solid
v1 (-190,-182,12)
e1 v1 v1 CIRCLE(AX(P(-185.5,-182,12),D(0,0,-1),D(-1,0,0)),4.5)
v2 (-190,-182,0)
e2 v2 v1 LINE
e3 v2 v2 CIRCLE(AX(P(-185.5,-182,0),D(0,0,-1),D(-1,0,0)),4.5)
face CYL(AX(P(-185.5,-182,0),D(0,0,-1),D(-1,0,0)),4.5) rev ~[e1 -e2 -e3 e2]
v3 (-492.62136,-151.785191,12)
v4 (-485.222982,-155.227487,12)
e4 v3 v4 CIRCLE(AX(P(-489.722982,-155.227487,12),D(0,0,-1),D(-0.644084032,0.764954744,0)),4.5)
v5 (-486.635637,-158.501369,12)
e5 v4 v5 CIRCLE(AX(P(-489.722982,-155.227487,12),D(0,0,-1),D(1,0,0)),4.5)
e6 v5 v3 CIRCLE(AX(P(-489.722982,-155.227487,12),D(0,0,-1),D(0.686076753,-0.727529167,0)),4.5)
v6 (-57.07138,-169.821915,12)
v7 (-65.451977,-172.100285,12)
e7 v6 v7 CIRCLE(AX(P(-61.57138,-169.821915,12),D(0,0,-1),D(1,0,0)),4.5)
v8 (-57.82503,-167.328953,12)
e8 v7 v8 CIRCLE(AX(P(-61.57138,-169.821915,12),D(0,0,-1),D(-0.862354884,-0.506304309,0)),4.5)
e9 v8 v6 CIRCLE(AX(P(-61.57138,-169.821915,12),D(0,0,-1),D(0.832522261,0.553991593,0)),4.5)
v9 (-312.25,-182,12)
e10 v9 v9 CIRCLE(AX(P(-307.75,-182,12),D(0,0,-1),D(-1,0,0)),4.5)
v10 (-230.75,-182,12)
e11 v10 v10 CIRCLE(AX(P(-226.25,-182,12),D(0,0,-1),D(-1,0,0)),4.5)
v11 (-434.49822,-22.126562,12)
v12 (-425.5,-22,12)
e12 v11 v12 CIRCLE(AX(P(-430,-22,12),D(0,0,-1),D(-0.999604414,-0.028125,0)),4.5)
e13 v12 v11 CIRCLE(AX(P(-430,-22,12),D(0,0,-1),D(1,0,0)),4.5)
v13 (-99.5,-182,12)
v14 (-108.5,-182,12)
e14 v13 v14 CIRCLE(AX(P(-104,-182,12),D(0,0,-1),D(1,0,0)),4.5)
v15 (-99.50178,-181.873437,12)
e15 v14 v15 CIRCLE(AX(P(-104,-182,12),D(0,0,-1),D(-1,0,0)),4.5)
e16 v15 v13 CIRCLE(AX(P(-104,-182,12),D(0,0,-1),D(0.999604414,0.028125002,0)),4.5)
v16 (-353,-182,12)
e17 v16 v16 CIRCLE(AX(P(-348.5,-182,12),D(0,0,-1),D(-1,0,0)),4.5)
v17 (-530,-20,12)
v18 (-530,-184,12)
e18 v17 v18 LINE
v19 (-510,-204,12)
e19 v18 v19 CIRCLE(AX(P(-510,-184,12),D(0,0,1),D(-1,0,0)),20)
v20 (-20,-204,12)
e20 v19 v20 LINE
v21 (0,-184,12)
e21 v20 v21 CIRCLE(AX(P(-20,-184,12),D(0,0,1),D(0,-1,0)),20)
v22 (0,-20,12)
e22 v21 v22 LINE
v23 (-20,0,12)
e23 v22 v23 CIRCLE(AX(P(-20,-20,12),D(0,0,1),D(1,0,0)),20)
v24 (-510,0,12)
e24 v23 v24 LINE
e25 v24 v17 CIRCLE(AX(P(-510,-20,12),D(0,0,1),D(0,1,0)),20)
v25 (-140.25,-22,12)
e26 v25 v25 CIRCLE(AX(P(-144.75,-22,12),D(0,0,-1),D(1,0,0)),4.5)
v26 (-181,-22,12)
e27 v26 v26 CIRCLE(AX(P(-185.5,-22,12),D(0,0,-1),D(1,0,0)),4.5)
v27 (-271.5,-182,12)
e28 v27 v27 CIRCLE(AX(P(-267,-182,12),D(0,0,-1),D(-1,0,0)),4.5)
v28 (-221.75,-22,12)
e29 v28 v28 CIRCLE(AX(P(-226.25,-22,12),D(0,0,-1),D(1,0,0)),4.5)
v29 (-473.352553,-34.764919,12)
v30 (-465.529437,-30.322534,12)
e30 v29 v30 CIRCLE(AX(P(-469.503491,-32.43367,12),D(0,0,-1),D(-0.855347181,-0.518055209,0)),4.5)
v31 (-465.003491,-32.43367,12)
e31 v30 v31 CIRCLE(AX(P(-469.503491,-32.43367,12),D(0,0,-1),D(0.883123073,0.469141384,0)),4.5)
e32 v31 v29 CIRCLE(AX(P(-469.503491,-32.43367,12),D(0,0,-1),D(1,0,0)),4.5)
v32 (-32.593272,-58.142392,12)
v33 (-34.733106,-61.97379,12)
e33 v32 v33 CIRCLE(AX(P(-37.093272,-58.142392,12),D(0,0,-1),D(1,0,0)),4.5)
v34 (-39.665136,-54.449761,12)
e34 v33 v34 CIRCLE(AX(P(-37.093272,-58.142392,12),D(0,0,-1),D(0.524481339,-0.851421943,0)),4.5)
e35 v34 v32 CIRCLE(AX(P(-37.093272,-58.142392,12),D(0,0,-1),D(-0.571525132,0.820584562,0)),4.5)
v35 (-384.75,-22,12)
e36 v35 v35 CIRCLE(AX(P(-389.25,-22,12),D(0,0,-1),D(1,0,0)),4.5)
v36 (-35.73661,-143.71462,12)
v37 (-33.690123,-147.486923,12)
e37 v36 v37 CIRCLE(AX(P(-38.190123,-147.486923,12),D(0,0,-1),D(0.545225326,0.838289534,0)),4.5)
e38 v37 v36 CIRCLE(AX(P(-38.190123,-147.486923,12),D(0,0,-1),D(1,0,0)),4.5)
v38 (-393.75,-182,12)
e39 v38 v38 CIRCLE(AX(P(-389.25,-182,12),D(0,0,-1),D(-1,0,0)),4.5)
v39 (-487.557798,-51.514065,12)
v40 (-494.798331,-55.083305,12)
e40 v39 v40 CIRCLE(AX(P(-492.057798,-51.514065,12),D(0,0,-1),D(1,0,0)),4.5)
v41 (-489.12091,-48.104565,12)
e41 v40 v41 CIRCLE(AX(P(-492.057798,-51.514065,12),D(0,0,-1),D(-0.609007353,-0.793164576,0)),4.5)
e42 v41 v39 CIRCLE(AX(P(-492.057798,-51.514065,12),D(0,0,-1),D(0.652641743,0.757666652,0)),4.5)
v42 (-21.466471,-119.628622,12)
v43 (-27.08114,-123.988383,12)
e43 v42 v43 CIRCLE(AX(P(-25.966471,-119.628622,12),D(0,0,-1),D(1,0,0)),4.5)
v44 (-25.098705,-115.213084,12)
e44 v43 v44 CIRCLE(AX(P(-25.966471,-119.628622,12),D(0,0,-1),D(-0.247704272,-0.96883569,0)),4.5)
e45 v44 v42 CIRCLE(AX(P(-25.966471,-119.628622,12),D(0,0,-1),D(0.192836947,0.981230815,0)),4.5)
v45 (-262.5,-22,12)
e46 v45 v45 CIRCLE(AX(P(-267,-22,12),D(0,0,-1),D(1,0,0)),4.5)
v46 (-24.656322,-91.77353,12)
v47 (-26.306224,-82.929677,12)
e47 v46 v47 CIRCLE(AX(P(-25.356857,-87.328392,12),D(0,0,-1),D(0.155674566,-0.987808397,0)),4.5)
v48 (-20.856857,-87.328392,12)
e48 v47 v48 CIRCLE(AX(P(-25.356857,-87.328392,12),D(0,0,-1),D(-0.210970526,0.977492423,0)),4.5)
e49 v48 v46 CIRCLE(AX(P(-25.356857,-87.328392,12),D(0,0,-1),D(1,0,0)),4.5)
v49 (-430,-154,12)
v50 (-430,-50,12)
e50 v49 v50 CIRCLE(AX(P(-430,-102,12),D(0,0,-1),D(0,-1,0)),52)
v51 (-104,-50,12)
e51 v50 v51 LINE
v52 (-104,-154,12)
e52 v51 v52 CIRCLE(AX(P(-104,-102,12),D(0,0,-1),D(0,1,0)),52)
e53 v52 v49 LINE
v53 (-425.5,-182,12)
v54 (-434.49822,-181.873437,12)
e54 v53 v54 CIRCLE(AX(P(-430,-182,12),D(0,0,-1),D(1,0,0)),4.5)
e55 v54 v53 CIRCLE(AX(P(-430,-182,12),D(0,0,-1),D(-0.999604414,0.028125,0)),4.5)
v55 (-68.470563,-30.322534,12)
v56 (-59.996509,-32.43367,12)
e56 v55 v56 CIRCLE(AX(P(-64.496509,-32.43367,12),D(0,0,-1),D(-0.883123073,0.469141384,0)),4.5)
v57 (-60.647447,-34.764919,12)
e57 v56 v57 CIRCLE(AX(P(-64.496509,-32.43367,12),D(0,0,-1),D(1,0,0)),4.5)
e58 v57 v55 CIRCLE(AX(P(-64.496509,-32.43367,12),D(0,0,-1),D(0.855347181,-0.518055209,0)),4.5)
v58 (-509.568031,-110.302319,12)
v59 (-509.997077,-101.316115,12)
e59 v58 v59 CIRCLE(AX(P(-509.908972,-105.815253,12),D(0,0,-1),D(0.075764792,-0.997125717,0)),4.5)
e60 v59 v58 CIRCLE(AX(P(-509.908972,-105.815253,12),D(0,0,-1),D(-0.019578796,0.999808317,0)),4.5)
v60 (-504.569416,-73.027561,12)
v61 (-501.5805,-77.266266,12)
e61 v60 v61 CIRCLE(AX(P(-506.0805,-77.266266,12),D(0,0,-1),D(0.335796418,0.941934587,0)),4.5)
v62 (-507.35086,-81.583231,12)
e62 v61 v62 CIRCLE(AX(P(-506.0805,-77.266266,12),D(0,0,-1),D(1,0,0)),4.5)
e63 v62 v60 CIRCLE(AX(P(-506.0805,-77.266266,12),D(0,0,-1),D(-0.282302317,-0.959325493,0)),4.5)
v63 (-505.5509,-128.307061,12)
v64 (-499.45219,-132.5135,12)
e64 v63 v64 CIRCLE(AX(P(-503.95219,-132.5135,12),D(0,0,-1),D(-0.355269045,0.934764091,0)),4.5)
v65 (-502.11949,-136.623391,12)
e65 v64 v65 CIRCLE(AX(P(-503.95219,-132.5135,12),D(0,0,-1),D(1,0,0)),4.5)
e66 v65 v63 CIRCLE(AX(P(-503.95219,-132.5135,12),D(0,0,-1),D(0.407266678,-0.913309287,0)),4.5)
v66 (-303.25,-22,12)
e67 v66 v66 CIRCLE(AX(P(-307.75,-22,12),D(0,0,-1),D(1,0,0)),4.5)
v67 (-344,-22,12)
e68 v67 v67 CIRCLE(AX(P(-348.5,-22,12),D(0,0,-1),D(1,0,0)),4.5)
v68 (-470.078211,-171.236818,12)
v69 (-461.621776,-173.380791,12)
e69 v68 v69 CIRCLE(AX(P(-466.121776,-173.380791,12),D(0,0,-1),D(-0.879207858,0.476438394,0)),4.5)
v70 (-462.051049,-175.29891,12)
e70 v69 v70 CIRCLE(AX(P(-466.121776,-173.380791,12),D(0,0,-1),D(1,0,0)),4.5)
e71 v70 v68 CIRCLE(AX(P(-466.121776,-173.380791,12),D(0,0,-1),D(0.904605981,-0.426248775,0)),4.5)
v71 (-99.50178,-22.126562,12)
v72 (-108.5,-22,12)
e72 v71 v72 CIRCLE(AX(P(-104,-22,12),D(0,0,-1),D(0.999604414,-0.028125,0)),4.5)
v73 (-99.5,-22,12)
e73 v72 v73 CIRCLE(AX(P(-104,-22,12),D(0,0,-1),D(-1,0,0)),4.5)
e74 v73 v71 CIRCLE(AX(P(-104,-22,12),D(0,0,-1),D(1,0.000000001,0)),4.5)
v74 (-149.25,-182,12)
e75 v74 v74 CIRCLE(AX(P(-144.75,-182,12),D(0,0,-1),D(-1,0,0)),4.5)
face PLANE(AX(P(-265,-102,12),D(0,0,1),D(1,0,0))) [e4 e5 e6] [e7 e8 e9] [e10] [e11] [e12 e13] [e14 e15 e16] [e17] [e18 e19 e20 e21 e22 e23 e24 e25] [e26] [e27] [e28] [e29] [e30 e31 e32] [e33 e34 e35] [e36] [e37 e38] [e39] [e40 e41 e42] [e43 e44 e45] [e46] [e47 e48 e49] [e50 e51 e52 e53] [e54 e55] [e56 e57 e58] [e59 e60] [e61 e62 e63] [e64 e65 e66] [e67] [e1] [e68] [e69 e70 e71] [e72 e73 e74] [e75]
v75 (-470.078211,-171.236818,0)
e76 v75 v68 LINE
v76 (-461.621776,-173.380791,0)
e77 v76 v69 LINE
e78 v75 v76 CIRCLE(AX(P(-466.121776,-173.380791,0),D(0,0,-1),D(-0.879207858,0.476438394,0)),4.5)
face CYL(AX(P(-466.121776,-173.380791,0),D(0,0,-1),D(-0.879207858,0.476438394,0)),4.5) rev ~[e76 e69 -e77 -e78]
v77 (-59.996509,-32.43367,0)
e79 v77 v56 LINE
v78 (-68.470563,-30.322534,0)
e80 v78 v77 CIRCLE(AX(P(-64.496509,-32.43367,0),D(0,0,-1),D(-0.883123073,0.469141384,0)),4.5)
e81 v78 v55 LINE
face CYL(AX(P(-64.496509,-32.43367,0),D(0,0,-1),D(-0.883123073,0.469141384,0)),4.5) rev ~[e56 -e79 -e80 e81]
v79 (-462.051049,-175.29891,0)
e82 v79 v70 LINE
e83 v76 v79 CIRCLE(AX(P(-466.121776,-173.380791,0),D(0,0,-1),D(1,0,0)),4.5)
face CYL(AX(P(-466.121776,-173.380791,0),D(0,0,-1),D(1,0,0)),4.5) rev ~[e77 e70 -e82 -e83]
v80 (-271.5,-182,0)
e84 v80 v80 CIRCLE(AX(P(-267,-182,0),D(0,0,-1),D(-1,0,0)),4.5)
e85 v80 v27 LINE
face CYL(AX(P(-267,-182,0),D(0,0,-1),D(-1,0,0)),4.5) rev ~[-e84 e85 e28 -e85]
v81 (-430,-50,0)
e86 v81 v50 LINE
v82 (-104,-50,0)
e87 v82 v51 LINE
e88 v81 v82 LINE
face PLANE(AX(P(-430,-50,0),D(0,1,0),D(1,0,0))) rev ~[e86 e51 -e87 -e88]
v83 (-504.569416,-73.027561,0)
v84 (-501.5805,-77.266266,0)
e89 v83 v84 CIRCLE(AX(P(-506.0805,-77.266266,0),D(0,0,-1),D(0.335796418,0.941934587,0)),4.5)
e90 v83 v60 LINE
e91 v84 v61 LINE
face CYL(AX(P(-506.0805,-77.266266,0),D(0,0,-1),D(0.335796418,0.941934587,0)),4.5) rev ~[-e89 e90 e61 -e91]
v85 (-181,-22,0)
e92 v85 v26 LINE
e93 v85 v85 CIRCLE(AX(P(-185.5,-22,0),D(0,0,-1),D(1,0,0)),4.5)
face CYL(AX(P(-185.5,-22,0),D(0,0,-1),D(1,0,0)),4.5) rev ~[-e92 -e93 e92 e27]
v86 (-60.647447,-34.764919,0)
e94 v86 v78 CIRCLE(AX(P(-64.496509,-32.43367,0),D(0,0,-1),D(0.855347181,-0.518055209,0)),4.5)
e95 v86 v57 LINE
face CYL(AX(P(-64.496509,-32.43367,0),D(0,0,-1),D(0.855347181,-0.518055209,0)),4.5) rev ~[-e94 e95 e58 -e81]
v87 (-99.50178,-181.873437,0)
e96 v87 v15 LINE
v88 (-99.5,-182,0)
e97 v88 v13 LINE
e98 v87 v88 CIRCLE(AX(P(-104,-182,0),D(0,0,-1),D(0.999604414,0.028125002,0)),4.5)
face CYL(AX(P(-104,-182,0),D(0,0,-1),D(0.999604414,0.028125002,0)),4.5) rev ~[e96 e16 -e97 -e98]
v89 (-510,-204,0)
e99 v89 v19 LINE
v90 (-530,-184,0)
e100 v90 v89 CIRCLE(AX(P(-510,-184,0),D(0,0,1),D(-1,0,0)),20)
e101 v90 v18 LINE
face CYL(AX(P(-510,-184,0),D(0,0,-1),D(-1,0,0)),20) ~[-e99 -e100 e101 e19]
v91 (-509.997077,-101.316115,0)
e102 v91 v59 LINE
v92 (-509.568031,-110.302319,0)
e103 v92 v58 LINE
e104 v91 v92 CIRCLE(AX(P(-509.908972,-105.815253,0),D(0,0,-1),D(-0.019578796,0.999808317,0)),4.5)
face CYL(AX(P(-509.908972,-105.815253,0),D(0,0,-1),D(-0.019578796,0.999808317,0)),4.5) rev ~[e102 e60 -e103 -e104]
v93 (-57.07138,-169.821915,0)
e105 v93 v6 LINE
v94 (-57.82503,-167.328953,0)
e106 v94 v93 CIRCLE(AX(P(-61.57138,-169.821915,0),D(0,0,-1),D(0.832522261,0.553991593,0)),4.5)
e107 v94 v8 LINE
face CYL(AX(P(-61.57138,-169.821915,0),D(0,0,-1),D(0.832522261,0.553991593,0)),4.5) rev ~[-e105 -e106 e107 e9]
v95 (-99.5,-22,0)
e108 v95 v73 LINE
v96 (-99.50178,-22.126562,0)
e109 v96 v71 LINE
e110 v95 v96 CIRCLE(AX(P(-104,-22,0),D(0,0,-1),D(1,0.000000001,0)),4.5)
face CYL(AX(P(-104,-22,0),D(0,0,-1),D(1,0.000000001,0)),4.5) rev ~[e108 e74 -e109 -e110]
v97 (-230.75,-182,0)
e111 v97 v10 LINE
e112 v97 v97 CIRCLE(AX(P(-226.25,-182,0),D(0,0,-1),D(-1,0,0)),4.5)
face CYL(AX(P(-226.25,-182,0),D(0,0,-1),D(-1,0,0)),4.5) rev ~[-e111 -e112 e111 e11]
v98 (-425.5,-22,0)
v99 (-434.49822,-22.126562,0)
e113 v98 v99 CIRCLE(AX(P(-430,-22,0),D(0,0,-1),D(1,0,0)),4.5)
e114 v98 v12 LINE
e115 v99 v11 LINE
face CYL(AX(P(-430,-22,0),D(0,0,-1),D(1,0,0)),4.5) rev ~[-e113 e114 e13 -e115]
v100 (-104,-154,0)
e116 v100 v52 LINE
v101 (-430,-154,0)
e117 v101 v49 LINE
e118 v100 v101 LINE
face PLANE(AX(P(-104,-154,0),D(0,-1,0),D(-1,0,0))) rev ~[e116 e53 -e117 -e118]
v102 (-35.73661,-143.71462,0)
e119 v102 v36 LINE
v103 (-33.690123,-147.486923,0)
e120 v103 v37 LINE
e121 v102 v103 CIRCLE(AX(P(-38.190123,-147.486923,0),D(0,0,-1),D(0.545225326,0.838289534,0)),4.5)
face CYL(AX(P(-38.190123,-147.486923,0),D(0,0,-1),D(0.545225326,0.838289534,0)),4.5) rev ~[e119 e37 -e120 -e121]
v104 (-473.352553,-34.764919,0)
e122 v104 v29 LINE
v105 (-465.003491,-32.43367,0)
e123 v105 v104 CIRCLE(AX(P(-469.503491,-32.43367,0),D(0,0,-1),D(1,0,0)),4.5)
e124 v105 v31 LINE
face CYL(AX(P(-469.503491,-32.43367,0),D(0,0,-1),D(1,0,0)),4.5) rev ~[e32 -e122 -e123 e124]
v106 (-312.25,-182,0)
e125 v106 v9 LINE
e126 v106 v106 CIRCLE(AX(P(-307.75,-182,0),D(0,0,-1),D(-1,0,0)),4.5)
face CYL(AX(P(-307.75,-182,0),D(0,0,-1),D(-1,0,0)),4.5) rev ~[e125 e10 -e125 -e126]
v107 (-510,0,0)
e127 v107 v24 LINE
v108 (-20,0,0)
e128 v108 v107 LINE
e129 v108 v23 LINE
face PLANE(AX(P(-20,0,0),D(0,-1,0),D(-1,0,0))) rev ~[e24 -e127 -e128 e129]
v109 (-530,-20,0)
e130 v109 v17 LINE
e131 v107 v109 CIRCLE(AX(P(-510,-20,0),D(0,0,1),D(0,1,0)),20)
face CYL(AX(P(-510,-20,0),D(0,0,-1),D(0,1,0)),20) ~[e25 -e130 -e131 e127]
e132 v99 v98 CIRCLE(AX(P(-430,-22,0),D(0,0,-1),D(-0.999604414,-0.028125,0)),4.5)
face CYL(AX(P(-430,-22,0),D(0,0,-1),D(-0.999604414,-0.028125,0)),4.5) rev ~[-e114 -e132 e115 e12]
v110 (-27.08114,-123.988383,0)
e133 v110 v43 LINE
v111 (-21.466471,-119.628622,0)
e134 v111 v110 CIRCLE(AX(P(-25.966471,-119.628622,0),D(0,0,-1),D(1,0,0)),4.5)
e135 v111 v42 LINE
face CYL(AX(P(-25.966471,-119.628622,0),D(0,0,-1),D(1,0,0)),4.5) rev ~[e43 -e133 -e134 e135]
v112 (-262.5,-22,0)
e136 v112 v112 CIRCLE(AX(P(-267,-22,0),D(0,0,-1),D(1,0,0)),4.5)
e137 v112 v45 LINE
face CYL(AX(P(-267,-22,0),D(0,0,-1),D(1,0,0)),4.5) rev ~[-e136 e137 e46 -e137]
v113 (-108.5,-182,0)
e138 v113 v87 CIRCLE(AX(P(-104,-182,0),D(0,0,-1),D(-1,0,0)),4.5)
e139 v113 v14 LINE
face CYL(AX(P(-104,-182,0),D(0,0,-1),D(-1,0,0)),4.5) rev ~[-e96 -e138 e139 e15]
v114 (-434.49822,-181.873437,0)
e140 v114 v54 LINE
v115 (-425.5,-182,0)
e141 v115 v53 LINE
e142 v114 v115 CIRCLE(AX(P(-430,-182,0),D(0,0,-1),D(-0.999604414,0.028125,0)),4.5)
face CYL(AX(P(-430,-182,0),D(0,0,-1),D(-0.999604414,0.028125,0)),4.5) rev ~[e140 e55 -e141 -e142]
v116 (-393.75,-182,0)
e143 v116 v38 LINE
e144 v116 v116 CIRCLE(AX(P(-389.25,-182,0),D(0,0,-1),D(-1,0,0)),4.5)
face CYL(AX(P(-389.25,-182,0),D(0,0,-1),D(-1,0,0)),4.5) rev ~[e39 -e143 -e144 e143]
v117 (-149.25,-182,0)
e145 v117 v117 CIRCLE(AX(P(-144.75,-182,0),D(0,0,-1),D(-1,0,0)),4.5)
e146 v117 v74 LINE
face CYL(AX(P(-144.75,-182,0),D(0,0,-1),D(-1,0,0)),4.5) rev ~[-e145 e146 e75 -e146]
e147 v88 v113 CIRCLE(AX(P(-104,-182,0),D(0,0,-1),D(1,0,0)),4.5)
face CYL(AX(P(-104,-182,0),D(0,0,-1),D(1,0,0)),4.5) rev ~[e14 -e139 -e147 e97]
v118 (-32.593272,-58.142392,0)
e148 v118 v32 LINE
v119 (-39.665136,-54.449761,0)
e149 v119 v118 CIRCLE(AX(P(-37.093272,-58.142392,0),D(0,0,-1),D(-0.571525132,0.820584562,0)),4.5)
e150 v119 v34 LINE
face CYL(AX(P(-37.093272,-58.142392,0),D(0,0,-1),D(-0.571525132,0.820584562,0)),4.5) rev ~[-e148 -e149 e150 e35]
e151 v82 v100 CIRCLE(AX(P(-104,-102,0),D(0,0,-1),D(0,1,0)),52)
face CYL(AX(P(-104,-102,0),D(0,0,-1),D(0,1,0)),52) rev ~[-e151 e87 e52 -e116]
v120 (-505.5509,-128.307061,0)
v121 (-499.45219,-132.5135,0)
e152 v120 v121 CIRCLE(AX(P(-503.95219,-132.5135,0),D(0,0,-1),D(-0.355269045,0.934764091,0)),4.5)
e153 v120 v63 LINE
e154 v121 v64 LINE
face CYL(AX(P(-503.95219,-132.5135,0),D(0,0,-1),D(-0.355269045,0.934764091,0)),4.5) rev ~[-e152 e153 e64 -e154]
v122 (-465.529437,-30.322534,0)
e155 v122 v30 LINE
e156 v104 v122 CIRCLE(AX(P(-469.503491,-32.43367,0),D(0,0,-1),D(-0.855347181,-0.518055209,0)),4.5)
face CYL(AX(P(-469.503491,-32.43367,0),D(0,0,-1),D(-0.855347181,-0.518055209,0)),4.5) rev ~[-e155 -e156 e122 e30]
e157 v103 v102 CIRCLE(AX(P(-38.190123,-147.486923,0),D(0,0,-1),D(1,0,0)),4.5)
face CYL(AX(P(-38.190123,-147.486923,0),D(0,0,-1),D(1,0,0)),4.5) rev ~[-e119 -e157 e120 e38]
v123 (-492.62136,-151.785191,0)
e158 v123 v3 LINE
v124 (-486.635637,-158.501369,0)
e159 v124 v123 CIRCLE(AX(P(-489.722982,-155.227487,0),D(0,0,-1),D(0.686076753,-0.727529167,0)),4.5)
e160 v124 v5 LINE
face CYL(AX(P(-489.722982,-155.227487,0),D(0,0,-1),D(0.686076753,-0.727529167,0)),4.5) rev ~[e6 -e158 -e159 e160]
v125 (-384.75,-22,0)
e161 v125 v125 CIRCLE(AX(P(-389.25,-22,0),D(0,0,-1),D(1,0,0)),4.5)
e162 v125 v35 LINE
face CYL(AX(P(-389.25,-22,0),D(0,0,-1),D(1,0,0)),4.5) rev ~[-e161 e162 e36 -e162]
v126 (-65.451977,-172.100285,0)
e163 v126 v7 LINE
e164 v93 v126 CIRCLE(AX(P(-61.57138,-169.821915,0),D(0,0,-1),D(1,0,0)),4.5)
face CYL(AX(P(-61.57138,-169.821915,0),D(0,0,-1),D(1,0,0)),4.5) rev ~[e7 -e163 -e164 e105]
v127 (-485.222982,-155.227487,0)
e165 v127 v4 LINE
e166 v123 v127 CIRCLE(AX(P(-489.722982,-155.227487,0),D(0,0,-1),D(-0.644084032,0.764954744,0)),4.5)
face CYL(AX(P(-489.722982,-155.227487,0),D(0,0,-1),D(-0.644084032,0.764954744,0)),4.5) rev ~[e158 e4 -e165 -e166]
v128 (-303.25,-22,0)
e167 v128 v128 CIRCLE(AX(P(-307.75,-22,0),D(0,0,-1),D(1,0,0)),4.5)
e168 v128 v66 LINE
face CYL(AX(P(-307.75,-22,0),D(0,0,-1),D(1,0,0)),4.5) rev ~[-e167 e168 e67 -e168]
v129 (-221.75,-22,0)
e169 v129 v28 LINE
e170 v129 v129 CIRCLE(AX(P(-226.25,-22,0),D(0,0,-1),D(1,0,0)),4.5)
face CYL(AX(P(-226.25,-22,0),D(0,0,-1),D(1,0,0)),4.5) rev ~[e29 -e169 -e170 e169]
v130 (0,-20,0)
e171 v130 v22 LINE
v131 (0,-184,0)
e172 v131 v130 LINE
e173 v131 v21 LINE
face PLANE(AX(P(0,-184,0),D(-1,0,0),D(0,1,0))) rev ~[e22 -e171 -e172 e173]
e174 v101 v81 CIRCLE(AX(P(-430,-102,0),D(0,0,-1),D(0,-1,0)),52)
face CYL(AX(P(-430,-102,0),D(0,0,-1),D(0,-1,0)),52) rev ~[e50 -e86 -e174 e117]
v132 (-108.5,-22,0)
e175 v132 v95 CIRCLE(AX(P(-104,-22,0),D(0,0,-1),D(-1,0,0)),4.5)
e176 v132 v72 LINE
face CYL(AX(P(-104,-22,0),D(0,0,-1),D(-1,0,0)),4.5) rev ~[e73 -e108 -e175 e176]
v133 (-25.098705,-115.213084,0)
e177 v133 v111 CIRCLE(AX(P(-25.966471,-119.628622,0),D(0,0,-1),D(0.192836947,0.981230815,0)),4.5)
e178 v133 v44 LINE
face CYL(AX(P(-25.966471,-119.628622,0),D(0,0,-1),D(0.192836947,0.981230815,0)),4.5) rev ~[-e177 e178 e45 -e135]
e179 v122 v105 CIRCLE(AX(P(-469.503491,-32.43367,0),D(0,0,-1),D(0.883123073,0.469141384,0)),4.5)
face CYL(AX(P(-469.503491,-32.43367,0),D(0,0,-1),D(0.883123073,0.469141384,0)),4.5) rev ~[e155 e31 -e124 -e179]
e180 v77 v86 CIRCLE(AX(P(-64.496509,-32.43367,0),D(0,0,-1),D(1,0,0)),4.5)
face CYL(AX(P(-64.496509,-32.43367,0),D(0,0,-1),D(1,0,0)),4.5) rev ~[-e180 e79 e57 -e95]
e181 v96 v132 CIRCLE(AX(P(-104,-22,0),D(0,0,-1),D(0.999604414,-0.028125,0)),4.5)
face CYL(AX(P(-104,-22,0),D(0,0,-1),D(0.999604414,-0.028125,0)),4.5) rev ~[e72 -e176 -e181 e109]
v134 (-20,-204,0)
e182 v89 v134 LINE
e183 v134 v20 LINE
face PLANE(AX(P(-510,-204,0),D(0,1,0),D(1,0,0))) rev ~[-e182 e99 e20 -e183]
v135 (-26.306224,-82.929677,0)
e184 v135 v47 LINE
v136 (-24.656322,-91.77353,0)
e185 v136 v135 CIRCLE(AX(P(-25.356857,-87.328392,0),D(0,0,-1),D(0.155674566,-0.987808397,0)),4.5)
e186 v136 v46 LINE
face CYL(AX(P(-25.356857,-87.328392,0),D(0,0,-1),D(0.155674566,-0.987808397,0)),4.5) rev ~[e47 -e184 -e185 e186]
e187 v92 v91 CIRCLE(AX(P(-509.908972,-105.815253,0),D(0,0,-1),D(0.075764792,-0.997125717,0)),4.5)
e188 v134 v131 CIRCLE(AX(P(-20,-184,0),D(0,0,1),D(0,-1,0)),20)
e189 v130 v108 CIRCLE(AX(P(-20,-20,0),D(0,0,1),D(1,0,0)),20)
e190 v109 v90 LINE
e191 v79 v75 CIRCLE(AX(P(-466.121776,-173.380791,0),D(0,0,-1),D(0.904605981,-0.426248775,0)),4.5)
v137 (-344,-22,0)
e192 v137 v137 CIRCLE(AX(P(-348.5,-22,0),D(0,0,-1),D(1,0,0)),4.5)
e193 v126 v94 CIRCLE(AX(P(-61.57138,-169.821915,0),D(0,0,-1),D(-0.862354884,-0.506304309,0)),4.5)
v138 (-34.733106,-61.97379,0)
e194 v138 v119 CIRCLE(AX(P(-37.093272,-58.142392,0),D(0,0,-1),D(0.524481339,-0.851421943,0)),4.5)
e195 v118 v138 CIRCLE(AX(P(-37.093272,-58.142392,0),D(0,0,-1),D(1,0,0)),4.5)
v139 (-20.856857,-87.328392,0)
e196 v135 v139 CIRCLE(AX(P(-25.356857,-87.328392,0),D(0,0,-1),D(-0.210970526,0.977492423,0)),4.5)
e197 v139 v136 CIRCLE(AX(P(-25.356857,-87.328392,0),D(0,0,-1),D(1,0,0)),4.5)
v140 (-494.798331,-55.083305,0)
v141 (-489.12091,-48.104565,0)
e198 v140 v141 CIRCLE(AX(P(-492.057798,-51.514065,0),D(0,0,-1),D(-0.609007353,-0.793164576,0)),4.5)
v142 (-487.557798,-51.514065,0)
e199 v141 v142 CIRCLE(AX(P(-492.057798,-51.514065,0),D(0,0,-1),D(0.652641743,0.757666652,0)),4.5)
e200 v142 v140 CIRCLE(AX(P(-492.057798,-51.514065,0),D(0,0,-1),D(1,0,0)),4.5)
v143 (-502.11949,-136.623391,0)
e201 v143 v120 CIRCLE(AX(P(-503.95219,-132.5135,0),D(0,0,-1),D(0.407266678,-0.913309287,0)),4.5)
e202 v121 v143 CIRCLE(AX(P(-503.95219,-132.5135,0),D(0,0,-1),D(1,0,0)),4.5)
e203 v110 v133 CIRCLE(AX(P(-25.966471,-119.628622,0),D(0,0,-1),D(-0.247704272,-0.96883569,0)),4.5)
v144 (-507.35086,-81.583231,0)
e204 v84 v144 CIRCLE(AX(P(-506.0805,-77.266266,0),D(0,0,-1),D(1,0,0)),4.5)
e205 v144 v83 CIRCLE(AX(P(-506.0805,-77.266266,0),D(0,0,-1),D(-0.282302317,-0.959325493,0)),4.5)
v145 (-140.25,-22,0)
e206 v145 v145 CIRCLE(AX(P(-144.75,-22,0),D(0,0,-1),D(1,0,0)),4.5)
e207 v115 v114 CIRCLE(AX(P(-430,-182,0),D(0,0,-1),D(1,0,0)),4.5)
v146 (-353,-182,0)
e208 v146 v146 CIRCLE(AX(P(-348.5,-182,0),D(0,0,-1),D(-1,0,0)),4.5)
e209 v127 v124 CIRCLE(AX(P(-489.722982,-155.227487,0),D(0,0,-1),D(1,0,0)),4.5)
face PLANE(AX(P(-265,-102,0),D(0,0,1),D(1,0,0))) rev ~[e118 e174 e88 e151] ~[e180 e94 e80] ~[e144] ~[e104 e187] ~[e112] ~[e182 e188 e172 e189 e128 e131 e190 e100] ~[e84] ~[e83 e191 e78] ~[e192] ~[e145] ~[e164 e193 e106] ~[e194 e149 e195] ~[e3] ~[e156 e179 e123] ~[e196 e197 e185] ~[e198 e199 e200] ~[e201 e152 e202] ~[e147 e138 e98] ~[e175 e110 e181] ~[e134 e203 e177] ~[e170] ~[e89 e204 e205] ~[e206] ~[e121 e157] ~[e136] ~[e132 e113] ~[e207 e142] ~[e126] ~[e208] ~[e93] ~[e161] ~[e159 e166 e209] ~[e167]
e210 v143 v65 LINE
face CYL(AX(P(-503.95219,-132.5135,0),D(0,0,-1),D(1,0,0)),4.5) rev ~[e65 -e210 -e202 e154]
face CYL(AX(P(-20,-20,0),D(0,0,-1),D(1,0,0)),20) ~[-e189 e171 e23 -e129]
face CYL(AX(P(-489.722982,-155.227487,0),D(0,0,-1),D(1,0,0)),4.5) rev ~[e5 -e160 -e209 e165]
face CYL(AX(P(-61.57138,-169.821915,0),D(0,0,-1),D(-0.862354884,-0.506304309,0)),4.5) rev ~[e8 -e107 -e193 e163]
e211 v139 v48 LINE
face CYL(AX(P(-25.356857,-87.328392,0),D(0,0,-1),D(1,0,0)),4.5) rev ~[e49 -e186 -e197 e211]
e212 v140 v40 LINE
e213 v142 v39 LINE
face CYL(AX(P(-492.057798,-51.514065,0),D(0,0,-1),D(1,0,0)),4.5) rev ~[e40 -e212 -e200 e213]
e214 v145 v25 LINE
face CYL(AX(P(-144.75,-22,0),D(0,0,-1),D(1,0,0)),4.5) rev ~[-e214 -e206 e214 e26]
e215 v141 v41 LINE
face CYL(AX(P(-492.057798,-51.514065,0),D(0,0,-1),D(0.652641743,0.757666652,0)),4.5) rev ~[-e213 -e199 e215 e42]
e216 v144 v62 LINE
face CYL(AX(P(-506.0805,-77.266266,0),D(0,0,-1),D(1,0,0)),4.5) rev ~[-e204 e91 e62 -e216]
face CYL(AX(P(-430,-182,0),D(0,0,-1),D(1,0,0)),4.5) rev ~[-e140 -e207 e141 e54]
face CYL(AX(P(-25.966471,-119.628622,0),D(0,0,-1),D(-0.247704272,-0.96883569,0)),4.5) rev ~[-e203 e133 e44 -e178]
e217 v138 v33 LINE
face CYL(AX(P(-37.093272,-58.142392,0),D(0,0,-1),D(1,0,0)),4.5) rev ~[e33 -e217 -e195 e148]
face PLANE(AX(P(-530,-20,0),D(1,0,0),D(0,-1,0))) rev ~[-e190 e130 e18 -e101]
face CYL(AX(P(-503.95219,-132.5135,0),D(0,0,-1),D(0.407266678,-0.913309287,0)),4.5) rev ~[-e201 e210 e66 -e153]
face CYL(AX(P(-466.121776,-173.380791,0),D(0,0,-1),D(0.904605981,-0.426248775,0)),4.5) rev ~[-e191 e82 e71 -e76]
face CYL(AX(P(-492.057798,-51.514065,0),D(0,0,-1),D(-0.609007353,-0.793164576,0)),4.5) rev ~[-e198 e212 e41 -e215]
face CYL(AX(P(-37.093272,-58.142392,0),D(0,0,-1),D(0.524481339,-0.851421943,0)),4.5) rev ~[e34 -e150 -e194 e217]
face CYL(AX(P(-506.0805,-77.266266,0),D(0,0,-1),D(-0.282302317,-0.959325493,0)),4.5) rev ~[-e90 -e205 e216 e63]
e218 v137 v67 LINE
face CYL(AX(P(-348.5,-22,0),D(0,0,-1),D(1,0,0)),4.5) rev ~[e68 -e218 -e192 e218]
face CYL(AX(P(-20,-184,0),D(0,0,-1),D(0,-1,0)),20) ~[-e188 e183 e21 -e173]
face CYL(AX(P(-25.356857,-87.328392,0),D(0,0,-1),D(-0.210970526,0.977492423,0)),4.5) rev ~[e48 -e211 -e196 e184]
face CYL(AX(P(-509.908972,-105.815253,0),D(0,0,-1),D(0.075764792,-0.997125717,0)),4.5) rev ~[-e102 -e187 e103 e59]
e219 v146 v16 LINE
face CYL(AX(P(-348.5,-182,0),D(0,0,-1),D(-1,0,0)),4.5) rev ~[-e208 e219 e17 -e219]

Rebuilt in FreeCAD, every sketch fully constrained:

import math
import FreeCAD as App
import Part
import Sketcher

V = App.Vector

doc = App.newDocument("Part")
body = doc.addObject("PartDesign::Body", "Body")

sketch1 = body.newObject("Sketcher::SketchObject", "Sketch")
sketch1.AttachmentSupport = (doc.getObject("XY_Plane"), [""])
sketch1.MapMode = "FlatFace"
sketch1.addGeometry(Part.ArcOfCircle(Part.Circle(V(-20, -20, 0), V(0, 0, 1), 20), math.radians(0), math.radians(90)), False)
sketch1.addGeometry(Part.LineSegment(V(-20, 0, 0), V(-510, 0, 0)), False)
sketch1.addGeometry(Part.ArcOfCircle(Part.Circle(V(-510, -20, 0), V(0, 0, 1), 20), math.radians(90), math.radians(180)), False)
sketch1.addGeometry(Part.LineSegment(V(-530, -20, 0), V(-530, -184, 0)), False)
sketch1.addGeometry(Part.ArcOfCircle(Part.Circle(V(-510, -184, 0), V(0, 0, 1), 20), math.radians(180), math.radians(270)), False)
sketch1.addGeometry(Part.LineSegment(V(-510, -204, 0), V(-20, -204, 0)), False)
sketch1.addGeometry(Part.ArcOfCircle(Part.Circle(V(-20, -184, 0), V(0, 0, 1), 20), math.radians(-90), math.radians(0)), False)
sketch1.addGeometry(Part.LineSegment(V(0, -184, 0), V(0, -20, 0)), False)
sketch1.addGeometry(Part.ArcOfCircle(Part.Circle(V(-466.121776, -173.380791, 0), V(0, 0, 1), 4.5), math.radians(151.546955), math.radians(334.770268)), False)
sketch1.addGeometry(Part.ArcOfCircle(Part.Circle(V(-466.121776, -173.380791, 0), V(0, 0, 1), 4.5), math.radians(0), math.radians(151.546955)), False)
sketch1.addGeometry(Part.ArcOfCircle(Part.Circle(V(-466.121776, -173.380791, 0), V(0, 0, 1), 4.5), math.radians(-25.229732), math.radians(0)), False)
sketch1.addGeometry(Part.ArcOfCircle(Part.Circle(V(-430, -182, 0), V(0, 0, 1), 4.5), math.radians(178.388344), math.radians(360)), False)
sketch1.addGeometry(Part.ArcOfCircle(Part.Circle(V(-430, -182, 0), V(0, 0, 1), 4.5), math.radians(0), math.radians(178.388344)), False)
sketch1.addGeometry(Part.ArcOfCircle(Part.Circle(V(-489.722982, -155.227487, 0), V(0, 0, 1), 4.5), math.radians(130.097034), math.radians(313.320347)), False)
sketch1.addGeometry(Part.ArcOfCircle(Part.Circle(V(-489.722982, -155.227487, 0), V(0, 0, 1), 4.5), math.radians(0), math.radians(130.097034)), False)
sketch1.addGeometry(Part.ArcOfCircle(Part.Circle(V(-489.722982, -155.227487, 0), V(0, 0, 1), 4.5), math.radians(-46.679653), math.radians(0)), False)
sketch1.addGeometry(Part.Circle(V(-389.25, -182, 0), V(0, 0, 1), 4.5), False)
sketch1.addGeometry(Part.Circle(V(-348.5, -182, 0), V(0, 0, 1), 4.5), False)
sketch1.addGeometry(Part.Circle(V(-307.75, -182, 0), V(0, 0, 1), 4.5), False)
sketch1.addGeometry(Part.ArcOfCircle(Part.Circle(V(-503.95219, -132.5135, 0), V(0, 0, 1), 4.5), math.radians(110.809934), math.radians(294.033247)), False)
sketch1.addGeometry(Part.ArcOfCircle(Part.Circle(V(-503.95219, -132.5135, 0), V(0, 0, 1), 4.5), math.radians(0), math.radians(110.809934)), False)
sketch1.addGeometry(Part.ArcOfCircle(Part.Circle(V(-503.95219, -132.5135, 0), V(0, 0, 1), 4.5), math.radians(-65.966753), math.radians(0)), False)
sketch1.addGeometry(Part.ArcOfCircle(Part.Circle(V(-509.908972, -105.815253, 0), V(0, 0, 1), 4.5), math.radians(91.121854), math.radians(274.345167)), False)
sketch1.addGeometry(Part.ArcOfCircle(Part.Circle(V(-509.908972, -105.815253, 0), V(0, 0, 1), 4.5), math.radians(-85.654833), math.radians(91.121854)), False)
sketch1.addGeometry(Part.Circle(V(-267, -182, 0), V(0, 0, 1), 4.5), False)
sketch1.addGeometry(Part.Circle(V(-226.25, -182, 0), V(0, 0, 1), 4.5), False)
sketch1.addGeometry(Part.Circle(V(-185.5, -182, 0), V(0, 0, 1), 4.5), False)
sketch1.addGeometry(Part.Circle(V(-144.75, -182, 0), V(0, 0, 1), 4.5), False)
sketch1.addGeometry(Part.ArcOfCircle(Part.Circle(V(-104, -182, 0), V(0, 0, 1), 4.5), math.radians(180), math.radians(360)), False)
sketch1.addGeometry(Part.ArcOfCircle(Part.Circle(V(-104, -182, 0), V(0, 0, 1), 4.5), math.radians(1.611656), math.radians(180)), False)
sketch1.addGeometry(Part.ArcOfCircle(Part.Circle(V(-104, -182, 0), V(0, 0, 1), 4.5), math.radians(0), math.radians(1.611656)), False)
sketch1.addGeometry(Part.ArcOfCircle(Part.Circle(V(-61.57138, -169.821915, 0), V(0, 0, 1), 4.5), math.radians(-149.582026), math.radians(0)), False)
sketch1.addGeometry(Part.ArcOfCircle(Part.Circle(V(-61.57138, -169.821915, 0), V(0, 0, 1), 4.5), math.radians(33.641286), math.radians(210.417974)), False)
sketch1.addGeometry(Part.ArcOfCircle(Part.Circle(V(-61.57138, -169.821915, 0), V(0, 0, 1), 4.5), math.radians(0), math.radians(33.641286)), False)
sketch1.addGeometry(Part.ArcOfCircle(Part.Circle(V(-38.190123, -147.486923, 0), V(0, 0, 1), 4.5), math.radians(56.959937), math.radians(360)), False)
sketch1.addGeometry(Part.ArcOfCircle(Part.Circle(V(-38.190123, -147.486923, 0), V(0, 0, 1), 4.5), math.radians(0), math.radians(56.959937)), False)
sketch1.addGeometry(Part.LineSegment(V(-104, -154, 0), V(-430, -154, 0)), False)
sketch1.addGeometry(Part.ArcOfCircle(Part.Circle(V(-430, -102, 0), V(0, 0, 1), 52), math.radians(90), math.radians(270)), False)
sketch1.addGeometry(Part.LineSegment(V(-430, -50, 0), V(-104, -50, 0)), False)
sketch1.addGeometry(Part.ArcOfCircle(Part.Circle(V(-104, -102, 0), V(0, 0, 1), 52), math.radians(-90), math.radians(90)), False)
sketch1.addGeometry(Part.ArcOfCircle(Part.Circle(V(-25.966471, -119.628622, 0), V(0, 0, 1), 4.5), math.radians(-104.341704), math.radians(0)), False)
sketch1.addGeometry(Part.ArcOfCircle(Part.Circle(V(-25.966471, -119.628622, 0), V(0, 0, 1), 4.5), math.radians(78.881608), math.radians(255.658296)), False)
sketch1.addGeometry(Part.ArcOfCircle(Part.Circle(V(-25.966471, -119.628622, 0), V(0, 0, 1), 4.5), math.radians(0), math.radians(78.881608)), False)
sketch1.addGeometry(Part.ArcOfCircle(Part.Circle(V(-506.0805, -77.266266, 0), V(0, 0, 1), 4.5), math.radians(70.379025), math.radians(253.602338)), False)
sketch1.addGeometry(Part.ArcOfCircle(Part.Circle(V(-506.0805, -77.266266, 0), V(0, 0, 1), 4.5), math.radians(0), math.radians(70.379025)), False)
sketch1.addGeometry(Part.ArcOfCircle(Part.Circle(V(-506.0805, -77.266266, 0), V(0, 0, 1), 4.5), math.radians(-106.397662), math.radians(0)), False)
sketch1.addGeometry(Part.ArcOfCircle(Part.Circle(V(-492.057798, -51.514065, 0), V(0, 0, 1), 4.5), math.radians(49.258925), math.radians(232.482237)), False)
sketch1.addGeometry(Part.ArcOfCircle(Part.Circle(V(-492.057798, -51.514065, 0), V(0, 0, 1), 4.5), math.radians(0), math.radians(49.258925)), False)
sketch1.addGeometry(Part.ArcOfCircle(Part.Circle(V(-492.057798, -51.514065, 0), V(0, 0, 1), 4.5), math.radians(-127.517763), math.radians(0)), False)
sketch1.addGeometry(Part.ArcOfCircle(Part.Circle(V(-469.503491, -32.43367, 0), V(0, 0, 1), 4.5), math.radians(27.978576), math.radians(211.201889)), False)
sketch1.addGeometry(Part.ArcOfCircle(Part.Circle(V(-469.503491, -32.43367, 0), V(0, 0, 1), 4.5), math.radians(0), math.radians(27.978576)), False)
sketch1.addGeometry(Part.ArcOfCircle(Part.Circle(V(-469.503491, -32.43367, 0), V(0, 0, 1), 4.5), math.radians(-148.798111), math.radians(0)), False)
sketch1.addGeometry(Part.ArcOfCircle(Part.Circle(V(-430, -22, 0), V(0, 0, 1), 4.5), math.radians(0), math.radians(181.611656)), False)
sketch1.addGeometry(Part.ArcOfCircle(Part.Circle(V(-430, -22, 0), V(0, 0, 1), 4.5), math.radians(-178.388344), math.radians(0)), False)
sketch1.addGeometry(Part.Circle(V(-389.25, -22, 0), V(0, 0, 1), 4.5), False)
sketch1.addGeometry(Part.Circle(V(-348.5, -22, 0), V(0, 0, 1), 4.5), False)
sketch1.addGeometry(Part.Circle(V(-307.75, -22, 0), V(0, 0, 1), 4.5), False)
sketch1.addGeometry(Part.ArcOfCircle(Part.Circle(V(-25.356857, -87.328392, 0), V(0, 0, 1), 4.5), math.radians(-81.044079), math.radians(0)), False)
sketch1.addGeometry(Part.ArcOfCircle(Part.Circle(V(-25.356857, -87.328392, 0), V(0, 0, 1), 4.5), math.radians(102.179234), math.radians(278.955921)), False)
sketch1.addGeometry(Part.ArcOfCircle(Part.Circle(V(-25.356857, -87.328392, 0), V(0, 0, 1), 4.5), math.radians(0), math.radians(102.179234)), False)
sketch1.addGeometry(Part.Circle(V(-267, -22, 0), V(0, 0, 1), 4.5), False)
sketch1.addGeometry(Part.Circle(V(-226.25, -22, 0), V(0, 0, 1), 4.5), False)
sketch1.addGeometry(Part.Circle(V(-185.5, -22, 0), V(0, 0, 1), 4.5), False)
sketch1.addGeometry(Part.Circle(V(-144.75, -22, 0), V(0, 0, 1), 4.5), False)
sketch1.addGeometry(Part.ArcOfCircle(Part.Circle(V(-37.093272, -58.142392, 0), V(0, 0, 1), 4.5), math.radians(-58.366666), math.radians(0)), False)
sketch1.addGeometry(Part.ArcOfCircle(Part.Circle(V(-37.093272, -58.142392, 0), V(0, 0, 1), 4.5), math.radians(124.856646), math.radians(301.633334)), False)
sketch1.addGeometry(Part.ArcOfCircle(Part.Circle(V(-37.093272, -58.142392, 0), V(0, 0, 1), 4.5), math.radians(0), math.radians(124.856646)), False)
sketch1.addGeometry(Part.ArcOfCircle(Part.Circle(V(-104, -22, 0), V(0, 0, 1), 4.5), math.radians(-1.611656), math.radians(0)), False)
sketch1.addGeometry(Part.ArcOfCircle(Part.Circle(V(-104, -22, 0), V(0, 0, 1), 4.5), math.radians(180), math.radians(358.388344)), False)
sketch1.addGeometry(Part.ArcOfCircle(Part.Circle(V(-104, -22, 0), V(0, 0, 1), 4.5), math.radians(0), math.radians(180)), False)
sketch1.addGeometry(Part.ArcOfCircle(Part.Circle(V(-64.496509, -32.43367, 0), V(0, 0, 1), 4.5), math.radians(-31.201889), math.radians(0)), False)
sketch1.addGeometry(Part.ArcOfCircle(Part.Circle(V(-64.496509, -32.43367, 0), V(0, 0, 1), 4.5), math.radians(152.021424), math.radians(328.798111)), False)
sketch1.addGeometry(Part.ArcOfCircle(Part.Circle(V(-64.496509, -32.43367, 0), V(0, 0, 1), 4.5), math.radians(0), math.radians(152.021424)), False)
sketch1.addConstraint(Sketcher.Constraint("Tangent", 0, 2, 1, 1))
sketch1.addConstraint(Sketcher.Constraint("Tangent", 1, 2, 2, 1))
sketch1.addConstraint(Sketcher.Constraint("Tangent", 2, 2, 3, 1))
sketch1.addConstraint(Sketcher.Constraint("Tangent", 3, 2, 4, 1))
sketch1.addConstraint(Sketcher.Constraint("Tangent", 4, 2, 5, 1))
sketch1.addConstraint(Sketcher.Constraint("Tangent", 5, 2, 6, 1))
sketch1.addConstraint(Sketcher.Constraint("Tangent", 6, 2, 7, 1))
sketch1.addConstraint(Sketcher.Constraint("Tangent", 7, 2, 0, 1))
sketch1.addConstraint(Sketcher.Constraint("Tangent", 8, 1, 9, 2))
sketch1.addConstraint(Sketcher.Constraint("Tangent", 9, 1, 10, 2))
sketch1.addConstraint(Sketcher.Constraint("Tangent", 10, 1, 8, 2))
sketch1.addConstraint(Sketcher.Constraint("Tangent", 11, 1, 12, 2))
sketch1.addConstraint(Sketcher.Constraint("Coincident", 12, 1, 11, 2))
sketch1.addConstraint(Sketcher.Constraint("Tangent", 13, 1, 14, 2))
sketch1.addConstraint(Sketcher.Constraint("Tangent", 14, 1, 15, 2))
sketch1.addConstraint(Sketcher.Constraint("Tangent", 15, 1, 13, 2))
sketch1.addConstraint(Sketcher.Constraint("Tangent", 19, 1, 20, 2))
sketch1.addConstraint(Sketcher.Constraint("Tangent", 20, 1, 21, 2))
sketch1.addConstraint(Sketcher.Constraint("Tangent", 21, 1, 19, 2))
sketch1.addConstraint(Sketcher.Constraint("Tangent", 22, 1, 23, 2))
sketch1.addConstraint(Sketcher.Constraint("Coincident", 23, 1, 22, 2))
sketch1.addConstraint(Sketcher.Constraint("Tangent", 28, 1, 29, 2))
sketch1.addConstraint(Sketcher.Constraint("Tangent", 29, 1, 30, 2))
sketch1.addConstraint(Sketcher.Constraint("Tangent", 30, 1, 28, 2))
sketch1.addConstraint(Sketcher.Constraint("Tangent", 31, 1, 32, 2))
sketch1.addConstraint(Sketcher.Constraint("Tangent", 32, 1, 33, 2))
sketch1.addConstraint(Sketcher.Constraint("Tangent", 33, 1, 31, 2))
sketch1.addConstraint(Sketcher.Constraint("Tangent", 34, 1, 35, 2))
sketch1.addConstraint(Sketcher.Constraint("Coincident", 35, 1, 34, 2))
sketch1.addConstraint(Sketcher.Constraint("Tangent", 36, 2, 37, 2))
sketch1.addConstraint(Sketcher.Constraint("Tangent", 37, 1, 38, 1))
sketch1.addConstraint(Sketcher.Constraint("Tangent", 38, 2, 39, 2))
sketch1.addConstraint(Sketcher.Constraint("Tangent", 39, 1, 36, 1))
sketch1.addConstraint(Sketcher.Constraint("Tangent", 40, 1, 41, 2))
sketch1.addConstraint(Sketcher.Constraint("Tangent", 41, 1, 42, 2))
sketch1.addConstraint(Sketcher.Constraint("Tangent", 42, 1, 40, 2))
sketch1.addConstraint(Sketcher.Constraint("Tangent", 43, 1, 44, 2))
sketch1.addConstraint(Sketcher.Constraint("Tangent", 44, 1, 45, 2))
sketch1.addConstraint(Sketcher.Constraint("Tangent", 45, 1, 43, 2))
sketch1.addConstraint(Sketcher.Constraint("Tangent", 46, 1, 47, 2))
sketch1.addConstraint(Sketcher.Constraint("Tangent", 47, 1, 48, 2))
sketch1.addConstraint(Sketcher.Constraint("Tangent", 48, 1, 46, 2))
sketch1.addConstraint(Sketcher.Constraint("Tangent", 49, 1, 50, 2))
sketch1.addConstraint(Sketcher.Constraint("Tangent", 50, 1, 51, 2))
sketch1.addConstraint(Sketcher.Constraint("Tangent", 51, 1, 49, 2))
sketch1.addConstraint(Sketcher.Constraint("Tangent", 52, 1, 53, 2))
sketch1.addConstraint(Sketcher.Constraint("Coincident", 53, 1, 52, 2))
sketch1.addConstraint(Sketcher.Constraint("Tangent", 57, 1, 58, 2))
sketch1.addConstraint(Sketcher.Constraint("Tangent", 58, 1, 59, 2))
sketch1.addConstraint(Sketcher.Constraint("Tangent", 59, 1, 57, 2))
sketch1.addConstraint(Sketcher.Constraint("Tangent", 64, 1, 65, 2))
sketch1.addConstraint(Sketcher.Constraint("Tangent", 65, 1, 66, 2))
sketch1.addConstraint(Sketcher.Constraint("Tangent", 66, 1, 64, 2))
sketch1.addConstraint(Sketcher.Constraint("Tangent", 67, 1, 68, 2))
sketch1.addConstraint(Sketcher.Constraint("Tangent", 68, 1, 69, 2))
sketch1.addConstraint(Sketcher.Constraint("Tangent", 69, 1, 67, 2))
sketch1.addConstraint(Sketcher.Constraint("Tangent", 70, 1, 71, 2))
sketch1.addConstraint(Sketcher.Constraint("Tangent", 71, 1, 72, 2))
sketch1.addConstraint(Sketcher.Constraint("Tangent", 72, 1, 70, 2))
sketch1.addConstraint(Sketcher.Constraint("Horizontal", 1))
sketch1.addConstraint(Sketcher.Constraint("Vertical", 3))
sketch1.addConstraint(Sketcher.Constraint("Horizontal", 5))
sketch1.addConstraint(Sketcher.Constraint("Vertical", 7))
sketch1.addConstraint(Sketcher.Constraint("Horizontal", 36))
sketch1.addConstraint(Sketcher.Constraint("Horizontal", 38))
sketch1.addConstraint(Sketcher.Constraint("Equal", 0, 2))
sketch1.addConstraint(Sketcher.Constraint("Equal", 2, 4))
sketch1.addConstraint(Sketcher.Constraint("Equal", 4, 6))
sketch1.addConstraint(Sketcher.Constraint("Equal", 10, 11))
sketch1.addConstraint(Sketcher.Constraint("Equal", 12, 13))
sketch1.addConstraint(Sketcher.Constraint("Equal", 15, 16))
sketch1.addConstraint(Sketcher.Constraint("Equal", 16, 17))
sketch1.addConstraint(Sketcher.Constraint("Equal", 17, 18))
sketch1.addConstraint(Sketcher.Constraint("Equal", 18, 19))
sketch1.addConstraint(Sketcher.Constraint("Equal", 21, 22))
sketch1.addConstraint(Sketcher.Constraint("Equal", 23, 24))
sketch1.addConstraint(Sketcher.Constraint("Equal", 24, 25))
sketch1.addConstraint(Sketcher.Constraint("Equal", 25, 26))
sketch1.addConstraint(Sketcher.Constraint("Equal", 26, 27))
sketch1.addConstraint(Sketcher.Constraint("Equal", 27, 28))
sketch1.addConstraint(Sketcher.Constraint("Equal", 30, 31))
sketch1.addConstraint(Sketcher.Constraint("Equal", 33, 34))
sketch1.addConstraint(Sketcher.Constraint("Equal", 35, 40))
sketch1.addConstraint(Sketcher.Constraint("Equal", 42, 43))
sketch1.addConstraint(Sketcher.Constraint("Equal", 45, 46))
sketch1.addConstraint(Sketcher.Constraint("Equal", 48, 49))
sketch1.addConstraint(Sketcher.Constraint("Equal", 51, 52))
sketch1.addConstraint(Sketcher.Constraint("Equal", 53, 54))
sketch1.addConstraint(Sketcher.Constraint("Equal", 54, 55))
sketch1.addConstraint(Sketcher.Constraint("Equal", 55, 56))
sketch1.addConstraint(Sketcher.Constraint("Equal", 56, 57))
sketch1.addConstraint(Sketcher.Constraint("Equal", 59, 60))
sketch1.addConstraint(Sketcher.Constraint("Equal", 60, 61))
sketch1.addConstraint(Sketcher.Constraint("Equal", 61, 62))
sketch1.addConstraint(Sketcher.Constraint("Equal", 62, 63))
sketch1.addConstraint(Sketcher.Constraint("Equal", 63, 64))
sketch1.addConstraint(Sketcher.Constraint("Equal", 66, 67))
sketch1.addConstraint(Sketcher.Constraint("Equal", 69, 70))
sketch1.addConstraint(Sketcher.Constraint("PointOnObject", 0, 2, -1))
sketch1.addConstraint(Sketcher.Constraint("PointOnObject", 6, 2, -2))
sketch1.addConstraint(Sketcher.Constraint("Horizontal", 12, 3, 16, 3))
sketch1.addConstraint(Sketcher.Constraint("Horizontal", 16, 3, 17, 3))
sketch1.addConstraint(Sketcher.Constraint("Horizontal", 17, 3, 18, 3))
sketch1.addConstraint(Sketcher.Constraint("Horizontal", 18, 3, 24, 3))
sketch1.addConstraint(Sketcher.Constraint("Horizontal", 24, 3, 25, 3))
sketch1.addConstraint(Sketcher.Constraint("Horizontal", 25, 3, 26, 3))
sketch1.addConstraint(Sketcher.Constraint("Horizontal", 26, 3, 27, 3))
sketch1.addConstraint(Sketcher.Constraint("Horizontal", 27, 3, 28, 3))
sketch1.addConstraint(Sketcher.Constraint("Horizontal", 53, 3, 54, 3))
sketch1.addConstraint(Sketcher.Constraint("Horizontal", 54, 3, 55, 3))
sketch1.addConstraint(Sketcher.Constraint("Horizontal", 55, 3, 56, 3))
sketch1.addConstraint(Sketcher.Constraint("Horizontal", 56, 3, 60, 3))
sketch1.addConstraint(Sketcher.Constraint("Horizontal", 60, 3, 61, 3))
sketch1.addConstraint(Sketcher.Constraint("Horizontal", 61, 3, 62, 3))
sketch1.addConstraint(Sketcher.Constraint("Horizontal", 62, 3, 63, 3))
sketch1.addConstraint(Sketcher.Constraint("Horizontal", 63, 3, 67, 3))
sketch1.addConstraint(Sketcher.Constraint("Horizontal", 51, 3, 70, 3))
sketch1.addConstraint(Sketcher.Constraint("Horizontal", 10, 3, 9, 1))
sketch1.addConstraint(Sketcher.Constraint("Horizontal", 30, 3, 12, 1))
sketch1.addConstraint(Sketcher.Constraint("Horizontal", 15, 3, 14, 1))
sketch1.addConstraint(Sketcher.Constraint("Horizontal", 21, 3, 20, 1))
sketch1.addConstraint(Sketcher.Constraint("Horizontal", 12, 1, 28, 1))
sketch1.addConstraint(Sketcher.Constraint("Horizontal", 11, 1, 29, 1))
sketch1.addConstraint(Sketcher.Constraint("Horizontal", 28, 1, 30, 1))
sketch1.addConstraint(Sketcher.Constraint("Horizontal", 32, 3, 33, 1))
sketch1.addConstraint(Sketcher.Constraint("Horizontal", 34, 3, 35, 1))
sketch1.addConstraint(Sketcher.Constraint("Horizontal", 41, 3, 42, 1))
sketch1.addConstraint(Sketcher.Constraint("Horizontal", 45, 3, 44, 1))
sketch1.addConstraint(Sketcher.Constraint("Horizontal", 48, 3, 47, 1))
sketch1.addConstraint(Sketcher.Constraint("Horizontal", 72, 3, 50, 1))
sketch1.addConstraint(Sketcher.Constraint("Horizontal", 69, 3, 52, 1))
sketch1.addConstraint(Sketcher.Constraint("Horizontal", 58, 3, 59, 1))
sketch1.addConstraint(Sketcher.Constraint("Horizontal", 65, 3, 66, 1))
sketch1.addConstraint(Sketcher.Constraint("Horizontal", 53, 1, 67, 1))
sketch1.addConstraint(Sketcher.Constraint("Horizontal", 52, 1, 68, 1))
sketch1.addConstraint(Sketcher.Constraint("Horizontal", 68, 1, 69, 1))
sketch1.addConstraint(Sketcher.Constraint("Horizontal", 51, 1, 70, 1))
sketch1.addConstraint(Sketcher.Constraint("Horizontal", 49, 1, 71, 1))
sketch1.addConstraint(Sketcher.Constraint("Horizontal", 50, 1, 72, 1))
sketch1.addConstraint(Sketcher.Constraint("Vertical", 12, 3, 37, 3))
sketch1.addConstraint(Sketcher.Constraint("Vertical", 30, 3, 39, 3))
sketch1.addConstraint(Sketcher.Constraint("Vertical", 37, 3, 52, 3))
sketch1.addConstraint(Sketcher.Constraint("Vertical", 16, 3, 54, 3))
sketch1.addConstraint(Sketcher.Constraint("Vertical", 17, 3, 55, 3))
sketch1.addConstraint(Sketcher.Constraint("Vertical", 18, 3, 56, 3))
sketch1.addConstraint(Sketcher.Constraint("Vertical", 24, 3, 60, 3))
sketch1.addConstraint(Sketcher.Constraint("Vertical", 25, 3, 61, 3))
sketch1.addConstraint(Sketcher.Constraint("Vertical", 26, 3, 62, 3))
sketch1.addConstraint(Sketcher.Constraint("Vertical", 27, 3, 63, 3))
sketch1.addConstraint(Sketcher.Constraint("Vertical", 39, 3, 67, 3))
sketch1.addConstraint(Sketcher.Constraint("Vertical", 11, 1, 53, 1))
sketch1.addConstraint(Sketcher.Constraint("Diameter", 16, 9.0))
sketch1.addConstraint(Sketcher.Constraint("Radius", 0, 20.0))
sketch1.addConstraint(Sketcher.Constraint("Radius", 37, 52.0))
sketch1.addConstraint(Sketcher.Constraint("DistanceX", 1, 2, 1, 1, 490.0))
sketch1.addConstraint(Sketcher.Constraint("DistanceX", 36, 2, 36, 1, 326.0))
sketch1.addConstraint(Sketcher.Constraint("DistanceY", 3, 2, 3, 1, 164.0))
sketch1.addConstraint(Sketcher.Constraint("DistanceX", 11, 3, -1, 1, 430.0))
sketch1.addConstraint(Sketcher.Constraint("DistanceY", 11, 3, -1, 1, 182.0))
sketch1.addConstraint(Sketcher.Constraint("DistanceX", 24, 3, -1, 1, 267.0))
sketch1.addConstraint(Sketcher.Constraint("DistanceY", 37, 3, -1, 1, 102.0))
sketch1.addConstraint(Sketcher.Constraint("DistanceY", 52, 3, -1, 1, 22.0))
sketch1.addConstraint(Sketcher.Constraint("DistanceX", 17, 3, -1, 1, 348.5))
sketch1.addConstraint(Sketcher.Constraint("DistanceX", 26, 3, -1, 1, 185.5))
sketch1.addConstraint(Sketcher.Constraint("DistanceX", 16, 3, -1, 1, 389.25))
sketch1.addConstraint(Sketcher.Constraint("DistanceX", 18, 3, -1, 1, 307.75))
sketch1.addConstraint(Sketcher.Constraint("DistanceX", 25, 3, -1, 1, 226.25))
sketch1.addConstraint(Sketcher.Constraint("DistanceX", 27, 3, -1, 1, 144.75))
sketch1.addConstraint(Sketcher.Constraint("DistanceY", 19, 3, -1, 1, 132.5135))
sketch1.addConstraint(Sketcher.Constraint("DistanceX", 43, 3, -1, 1, 506.0805))
sketch1.addConstraint(Sketcher.Constraint("DistanceX", 46, 3, -1, 1, 492.057798))
sketch1.addConstraint(Sketcher.Constraint("DistanceX", 19, 1, -1, 1, 505.5509))
sketch1.addConstraint(Sketcher.Constraint("DistanceY", 8, 3, -1, 1, 173.380791))
sketch1.addConstraint(Sketcher.Constraint("DistanceX", 19, 3, -1, 1, 503.95219))
sketch1.addConstraint(Sketcher.Constraint("DistanceX", 31, 3, -1, 1, 61.57138))
sketch1.addConstraint(Sketcher.Constraint("DistanceX", 40, 3, -1, 1, 25.966471))
sketch1.addConstraint(Sketcher.Constraint("DistanceX", 49, 3, -1, 1, 469.503491))
sketch1.addConstraint(Sketcher.Constraint("DistanceY", 49, 3, -1, 1, 32.43367))
sketch1.addConstraint(Sketcher.Constraint("DistanceY", 64, 3, -1, 1, 58.142392))
sketch1.addConstraint(Sketcher.Constraint("DistanceX", 70, 3, -1, 1, 64.496509))
sketch1.addConstraint(Sketcher.Constraint("DistanceX", 8, 1, -1, 1, 470.078211))
sketch1.addConstraint(Sketcher.Constraint("DistanceY", 8, 1, -1, 1, 171.236818))
sketch1.addConstraint(Sketcher.Constraint("DistanceX", 10, 1, -1, 1, 462.051049))
sketch1.addConstraint(Sketcher.Constraint("DistanceX", 11, 1, -1, 1, 434.49822))
sketch1.addConstraint(Sketcher.Constraint("DistanceX", 13, 1, -1, 1, 492.62136))
sketch1.addConstraint(Sketcher.Constraint("DistanceY", 13, 1, -1, 1, 151.785191))
sketch1.addConstraint(Sketcher.Constraint("DistanceY", 15, 1, -1, 1, 158.501369))
sketch1.addConstraint(Sketcher.Constraint("DistanceX", 21, 1, -1, 1, 502.11949))
sketch1.addConstraint(Sketcher.Constraint("DistanceX", 23, 1, -1, 1, 509.568031))
sketch1.addConstraint(Sketcher.Constraint("DistanceY", 23, 1, -1, 1, 110.302319))
sketch1.addConstraint(Sketcher.Constraint("DistanceX", 32, 1, -1, 1, 57.82503))
sketch1.addConstraint(Sketcher.Constraint("DistanceX", 34, 1, -1, 1, 35.73661))
sketch1.addConstraint(Sketcher.Constraint("DistanceY", 34, 1, -1, 1, 143.71462))
sketch1.addConstraint(Sketcher.Constraint("DistanceX", 40, 1, -1, 1, 27.08114))
sketch1.addConstraint(Sketcher.Constraint("DistanceY", 43, 1, -1, 1, 73.027561))
sketch1.addConstraint(Sketcher.Constraint("DistanceX", 45, 1, -1, 1, 507.35086))
sketch1.addConstraint(Sketcher.Constraint("DistanceY", 45, 1, -1, 1, 81.583231))
sketch1.addConstraint(Sketcher.Constraint("DistanceX", 46, 1, -1, 1, 489.12091))
sketch1.addConstraint(Sketcher.Constraint("DistanceX", 48, 1, -1, 1, 494.798331))
sketch1.addConstraint(Sketcher.Constraint("DistanceY", 51, 1, -1, 1, 34.764919))
sketch1.addConstraint(Sketcher.Constraint("DistanceX", 57, 1, -1, 1, 24.656322))
sketch1.addConstraint(Sketcher.Constraint("DistanceY", 57, 1, -1, 1, 91.77353))
sketch1.addConstraint(Sketcher.Constraint("DistanceY", 64, 1, -1, 1, 61.97379))
sketch1.addConstraint(Sketcher.Constraint("DistanceY", 65, 1, -1, 1, 54.449761))
sketch1.addConstraint(Sketcher.Constraint("DistanceX", 13, 3, -1, 1, 489.722982))
sketch1.addConstraint(Sketcher.Constraint("DistanceX", 22, 3, -1, 1, 509.908972))
sketch1.addConstraint(Sketcher.Constraint("DistanceY", 31, 3, -1, 1, 169.821915))
sketch1.addConstraint(Sketcher.Constraint("DistanceX", 34, 3, -1, 1, 38.190123))
sketch1.addConstraint(Sketcher.Constraint("DistanceY", 40, 3, -1, 1, 119.628622))
sketch1.addConstraint(Sketcher.Constraint("DistanceY", 46, 3, -1, 1, 51.514065))
sketch1.addConstraint(Sketcher.Constraint("DistanceX", 57, 3, -1, 1, 25.356857))
sketch1.addConstraint(Sketcher.Constraint("DistanceX", 64, 3, -1, 1, 37.093272))
sketch1.addConstraint(Sketcher.Constraint("DistanceX", 22, 1, -1, 1, 509.997077))
sketch1.addConstraint(Sketcher.Constraint("DistanceX", 31, 1, -1, 1, 65.451977))
sketch1.addConstraint(Sketcher.Constraint("DistanceX", 41, 1, -1, 1, 25.098705))
sketch1.addConstraint(Sketcher.Constraint("DistanceX", 49, 1, -1, 1, 465.529437))
sketch1.addConstraint(Sketcher.Constraint("DistanceX", 58, 1, -1, 1, 26.306224))
pad1 = body.newObject("PartDesign::Pad", "Pad")
pad1.Profile = sketch1
pad1.Length = 12

doc.recompute()
